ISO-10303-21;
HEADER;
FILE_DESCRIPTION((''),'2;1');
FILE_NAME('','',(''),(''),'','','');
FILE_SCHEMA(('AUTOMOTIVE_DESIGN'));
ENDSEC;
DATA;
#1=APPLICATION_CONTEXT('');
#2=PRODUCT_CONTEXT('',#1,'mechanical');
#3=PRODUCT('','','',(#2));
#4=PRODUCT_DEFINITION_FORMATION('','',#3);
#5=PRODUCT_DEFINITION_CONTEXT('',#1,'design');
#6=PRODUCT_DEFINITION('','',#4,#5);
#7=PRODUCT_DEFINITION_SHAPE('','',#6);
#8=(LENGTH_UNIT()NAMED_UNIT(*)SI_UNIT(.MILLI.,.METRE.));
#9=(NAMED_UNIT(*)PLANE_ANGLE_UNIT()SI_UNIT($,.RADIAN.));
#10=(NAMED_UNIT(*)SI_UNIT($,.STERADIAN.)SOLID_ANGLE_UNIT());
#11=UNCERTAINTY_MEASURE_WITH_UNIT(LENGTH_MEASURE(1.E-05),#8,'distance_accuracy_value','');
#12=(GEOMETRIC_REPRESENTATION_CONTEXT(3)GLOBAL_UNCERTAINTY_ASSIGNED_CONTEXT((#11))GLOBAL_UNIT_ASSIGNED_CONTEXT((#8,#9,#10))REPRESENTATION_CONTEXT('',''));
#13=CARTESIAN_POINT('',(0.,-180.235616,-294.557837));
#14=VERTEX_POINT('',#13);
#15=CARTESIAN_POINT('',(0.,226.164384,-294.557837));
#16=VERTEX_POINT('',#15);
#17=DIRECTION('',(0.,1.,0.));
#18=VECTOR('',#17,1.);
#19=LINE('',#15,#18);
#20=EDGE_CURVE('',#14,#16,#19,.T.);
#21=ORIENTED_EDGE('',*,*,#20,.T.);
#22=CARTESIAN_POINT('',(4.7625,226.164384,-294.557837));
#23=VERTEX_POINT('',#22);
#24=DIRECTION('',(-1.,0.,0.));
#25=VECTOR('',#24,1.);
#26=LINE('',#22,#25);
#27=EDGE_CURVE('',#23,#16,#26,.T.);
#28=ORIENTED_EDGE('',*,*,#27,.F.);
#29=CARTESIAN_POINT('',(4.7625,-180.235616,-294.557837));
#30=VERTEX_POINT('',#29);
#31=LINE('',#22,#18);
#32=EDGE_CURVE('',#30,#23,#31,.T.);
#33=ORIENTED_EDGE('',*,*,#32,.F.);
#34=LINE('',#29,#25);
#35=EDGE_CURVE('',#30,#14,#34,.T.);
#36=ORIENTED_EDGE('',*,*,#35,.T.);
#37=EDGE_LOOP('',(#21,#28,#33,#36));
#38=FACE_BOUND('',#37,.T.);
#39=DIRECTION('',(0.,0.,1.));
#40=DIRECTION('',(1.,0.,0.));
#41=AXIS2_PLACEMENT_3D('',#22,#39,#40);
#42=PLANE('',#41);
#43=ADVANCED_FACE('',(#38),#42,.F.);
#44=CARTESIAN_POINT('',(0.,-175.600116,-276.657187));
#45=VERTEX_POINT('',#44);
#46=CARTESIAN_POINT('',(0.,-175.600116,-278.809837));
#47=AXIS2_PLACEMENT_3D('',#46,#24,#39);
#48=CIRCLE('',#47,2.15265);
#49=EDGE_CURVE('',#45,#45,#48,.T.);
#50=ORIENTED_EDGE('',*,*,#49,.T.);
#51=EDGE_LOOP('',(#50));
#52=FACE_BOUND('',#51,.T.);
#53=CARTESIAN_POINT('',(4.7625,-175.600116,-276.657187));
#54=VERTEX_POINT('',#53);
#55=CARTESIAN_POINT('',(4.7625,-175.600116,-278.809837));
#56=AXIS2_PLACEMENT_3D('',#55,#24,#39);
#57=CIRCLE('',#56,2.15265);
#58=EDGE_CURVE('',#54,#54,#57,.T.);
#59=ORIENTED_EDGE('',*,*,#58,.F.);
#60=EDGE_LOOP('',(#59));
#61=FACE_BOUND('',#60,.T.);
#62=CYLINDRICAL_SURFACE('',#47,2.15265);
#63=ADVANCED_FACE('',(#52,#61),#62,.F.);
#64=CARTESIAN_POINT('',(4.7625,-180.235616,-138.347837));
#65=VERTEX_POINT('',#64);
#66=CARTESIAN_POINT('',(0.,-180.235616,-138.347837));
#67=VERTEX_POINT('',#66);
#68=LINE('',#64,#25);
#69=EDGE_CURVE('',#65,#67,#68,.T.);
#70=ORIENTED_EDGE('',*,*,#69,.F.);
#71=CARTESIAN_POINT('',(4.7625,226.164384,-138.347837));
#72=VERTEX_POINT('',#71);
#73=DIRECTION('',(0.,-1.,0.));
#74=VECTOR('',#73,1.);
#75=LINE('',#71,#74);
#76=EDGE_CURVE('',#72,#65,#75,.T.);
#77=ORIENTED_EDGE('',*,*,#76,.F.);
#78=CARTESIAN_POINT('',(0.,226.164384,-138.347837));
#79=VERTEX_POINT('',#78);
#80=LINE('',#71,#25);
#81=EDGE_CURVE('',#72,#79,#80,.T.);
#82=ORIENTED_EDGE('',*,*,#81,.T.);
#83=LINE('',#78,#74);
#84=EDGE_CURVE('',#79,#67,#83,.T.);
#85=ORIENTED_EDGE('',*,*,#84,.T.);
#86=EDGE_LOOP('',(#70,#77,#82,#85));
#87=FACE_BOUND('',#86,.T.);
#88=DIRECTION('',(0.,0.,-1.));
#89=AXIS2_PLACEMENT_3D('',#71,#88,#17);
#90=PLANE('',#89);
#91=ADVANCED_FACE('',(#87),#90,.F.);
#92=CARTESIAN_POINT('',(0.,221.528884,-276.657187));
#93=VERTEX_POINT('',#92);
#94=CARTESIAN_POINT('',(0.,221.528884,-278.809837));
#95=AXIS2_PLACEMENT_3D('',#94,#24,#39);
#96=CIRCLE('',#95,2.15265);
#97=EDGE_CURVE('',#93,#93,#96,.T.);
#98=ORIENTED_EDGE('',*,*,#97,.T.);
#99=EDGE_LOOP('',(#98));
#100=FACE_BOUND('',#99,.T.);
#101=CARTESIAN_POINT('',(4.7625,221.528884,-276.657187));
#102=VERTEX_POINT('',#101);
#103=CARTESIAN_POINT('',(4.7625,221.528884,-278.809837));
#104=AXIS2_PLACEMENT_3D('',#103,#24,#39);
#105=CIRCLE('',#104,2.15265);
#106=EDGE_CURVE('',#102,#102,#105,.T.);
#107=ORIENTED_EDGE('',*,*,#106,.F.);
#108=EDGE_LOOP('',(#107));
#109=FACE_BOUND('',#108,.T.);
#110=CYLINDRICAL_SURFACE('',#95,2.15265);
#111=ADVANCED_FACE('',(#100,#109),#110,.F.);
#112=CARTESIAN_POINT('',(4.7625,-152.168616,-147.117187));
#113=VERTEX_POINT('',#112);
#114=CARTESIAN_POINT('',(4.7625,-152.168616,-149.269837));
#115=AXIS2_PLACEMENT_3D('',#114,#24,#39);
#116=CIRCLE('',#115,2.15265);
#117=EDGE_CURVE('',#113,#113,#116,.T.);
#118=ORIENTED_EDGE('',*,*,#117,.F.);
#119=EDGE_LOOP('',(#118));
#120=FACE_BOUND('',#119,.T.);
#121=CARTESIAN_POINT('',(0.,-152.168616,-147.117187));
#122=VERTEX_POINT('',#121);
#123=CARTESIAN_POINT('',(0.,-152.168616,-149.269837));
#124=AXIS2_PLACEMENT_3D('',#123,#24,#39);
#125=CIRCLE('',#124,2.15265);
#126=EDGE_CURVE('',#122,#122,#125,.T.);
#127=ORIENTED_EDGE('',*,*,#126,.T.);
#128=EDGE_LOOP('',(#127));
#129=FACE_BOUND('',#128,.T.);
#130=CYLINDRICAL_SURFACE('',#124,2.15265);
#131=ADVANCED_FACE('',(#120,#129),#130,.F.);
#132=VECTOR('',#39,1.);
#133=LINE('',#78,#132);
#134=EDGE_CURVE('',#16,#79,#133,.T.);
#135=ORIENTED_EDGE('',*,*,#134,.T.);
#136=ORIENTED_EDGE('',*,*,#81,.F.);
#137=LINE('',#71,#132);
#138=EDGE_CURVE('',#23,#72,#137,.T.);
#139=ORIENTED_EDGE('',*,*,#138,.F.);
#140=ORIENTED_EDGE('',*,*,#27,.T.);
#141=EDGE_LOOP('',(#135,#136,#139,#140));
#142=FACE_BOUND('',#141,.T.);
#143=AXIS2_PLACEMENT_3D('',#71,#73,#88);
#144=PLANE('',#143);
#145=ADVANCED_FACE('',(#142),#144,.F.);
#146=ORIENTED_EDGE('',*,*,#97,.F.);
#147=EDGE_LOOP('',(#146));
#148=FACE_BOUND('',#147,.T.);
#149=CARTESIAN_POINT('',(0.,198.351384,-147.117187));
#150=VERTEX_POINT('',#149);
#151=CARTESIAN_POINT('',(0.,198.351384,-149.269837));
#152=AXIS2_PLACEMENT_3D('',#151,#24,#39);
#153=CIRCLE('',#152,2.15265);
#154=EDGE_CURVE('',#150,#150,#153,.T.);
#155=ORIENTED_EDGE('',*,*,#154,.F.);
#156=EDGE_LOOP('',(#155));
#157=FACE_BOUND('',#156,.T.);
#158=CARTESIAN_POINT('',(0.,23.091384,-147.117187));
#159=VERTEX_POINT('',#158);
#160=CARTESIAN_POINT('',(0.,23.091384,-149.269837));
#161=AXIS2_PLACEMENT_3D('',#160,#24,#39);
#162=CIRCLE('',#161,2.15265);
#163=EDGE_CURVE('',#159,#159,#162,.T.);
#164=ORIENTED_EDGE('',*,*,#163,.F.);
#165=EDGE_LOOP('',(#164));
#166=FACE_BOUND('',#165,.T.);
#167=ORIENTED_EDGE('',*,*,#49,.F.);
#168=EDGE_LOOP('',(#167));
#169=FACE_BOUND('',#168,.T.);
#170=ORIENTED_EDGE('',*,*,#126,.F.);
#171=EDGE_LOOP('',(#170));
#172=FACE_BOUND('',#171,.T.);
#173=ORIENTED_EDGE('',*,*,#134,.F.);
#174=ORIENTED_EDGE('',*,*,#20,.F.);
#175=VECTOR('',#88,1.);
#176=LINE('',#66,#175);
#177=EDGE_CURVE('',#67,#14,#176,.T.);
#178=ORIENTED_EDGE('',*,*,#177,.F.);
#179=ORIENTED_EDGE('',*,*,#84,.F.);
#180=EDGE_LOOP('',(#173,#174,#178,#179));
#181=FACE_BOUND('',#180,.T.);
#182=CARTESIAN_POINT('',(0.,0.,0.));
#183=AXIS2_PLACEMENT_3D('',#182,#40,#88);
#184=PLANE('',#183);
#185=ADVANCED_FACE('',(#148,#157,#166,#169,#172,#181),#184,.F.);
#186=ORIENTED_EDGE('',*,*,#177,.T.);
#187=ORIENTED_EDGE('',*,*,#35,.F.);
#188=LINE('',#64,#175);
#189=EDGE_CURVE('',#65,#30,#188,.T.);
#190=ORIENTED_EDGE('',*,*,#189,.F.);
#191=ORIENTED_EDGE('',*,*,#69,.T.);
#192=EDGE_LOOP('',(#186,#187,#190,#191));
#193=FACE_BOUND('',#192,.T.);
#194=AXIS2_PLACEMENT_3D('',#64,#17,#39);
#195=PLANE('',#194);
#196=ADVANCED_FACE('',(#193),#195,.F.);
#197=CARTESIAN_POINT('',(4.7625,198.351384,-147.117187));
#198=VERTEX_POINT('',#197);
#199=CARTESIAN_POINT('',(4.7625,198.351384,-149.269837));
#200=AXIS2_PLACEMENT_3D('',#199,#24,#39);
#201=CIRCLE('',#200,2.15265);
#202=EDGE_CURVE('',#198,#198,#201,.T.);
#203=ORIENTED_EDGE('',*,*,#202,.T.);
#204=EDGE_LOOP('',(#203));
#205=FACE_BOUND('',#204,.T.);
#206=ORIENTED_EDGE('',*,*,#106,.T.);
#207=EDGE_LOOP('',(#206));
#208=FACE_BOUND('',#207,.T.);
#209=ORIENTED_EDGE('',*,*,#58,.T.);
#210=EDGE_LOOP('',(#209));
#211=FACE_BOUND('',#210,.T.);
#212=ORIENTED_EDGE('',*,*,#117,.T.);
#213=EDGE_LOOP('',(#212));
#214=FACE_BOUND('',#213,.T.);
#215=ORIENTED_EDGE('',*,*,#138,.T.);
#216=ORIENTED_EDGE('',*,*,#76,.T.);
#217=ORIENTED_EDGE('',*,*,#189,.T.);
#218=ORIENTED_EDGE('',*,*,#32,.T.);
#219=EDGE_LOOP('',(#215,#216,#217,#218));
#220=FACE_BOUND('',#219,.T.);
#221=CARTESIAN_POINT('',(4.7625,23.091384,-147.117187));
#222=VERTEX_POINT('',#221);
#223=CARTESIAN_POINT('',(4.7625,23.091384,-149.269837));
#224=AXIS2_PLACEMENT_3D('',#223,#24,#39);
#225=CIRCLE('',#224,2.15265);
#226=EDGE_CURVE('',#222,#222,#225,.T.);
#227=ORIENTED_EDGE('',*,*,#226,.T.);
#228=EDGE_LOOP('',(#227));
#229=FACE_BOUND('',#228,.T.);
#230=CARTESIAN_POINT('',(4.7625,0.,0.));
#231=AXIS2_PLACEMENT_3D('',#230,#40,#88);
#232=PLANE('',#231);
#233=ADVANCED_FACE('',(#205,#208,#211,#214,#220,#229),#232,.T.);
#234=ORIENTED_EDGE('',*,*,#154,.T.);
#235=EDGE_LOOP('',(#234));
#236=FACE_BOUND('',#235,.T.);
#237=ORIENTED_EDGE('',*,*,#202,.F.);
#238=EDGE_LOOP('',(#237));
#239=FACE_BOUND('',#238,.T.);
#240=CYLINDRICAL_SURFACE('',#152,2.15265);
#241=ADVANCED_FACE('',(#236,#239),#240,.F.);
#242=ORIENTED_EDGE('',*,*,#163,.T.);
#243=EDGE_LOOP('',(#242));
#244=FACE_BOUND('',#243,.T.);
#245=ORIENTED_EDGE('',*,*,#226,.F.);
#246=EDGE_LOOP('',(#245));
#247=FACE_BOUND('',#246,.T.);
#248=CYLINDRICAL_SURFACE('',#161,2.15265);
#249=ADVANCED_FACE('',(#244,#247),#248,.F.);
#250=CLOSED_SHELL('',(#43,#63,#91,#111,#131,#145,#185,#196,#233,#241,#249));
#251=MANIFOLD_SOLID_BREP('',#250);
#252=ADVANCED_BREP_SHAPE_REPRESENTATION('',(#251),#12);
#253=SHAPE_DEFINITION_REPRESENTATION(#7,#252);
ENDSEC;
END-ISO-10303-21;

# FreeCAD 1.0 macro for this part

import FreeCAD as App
import Part
import Sketcher
from FreeCAD import Vector
Q = App.Units.Quantity

doc = App.newDocument("Part")
body = doc.addObject("PartDesign::Body", "Body")

# Sketch on YZ plane
sketch1 = body.newObject("Sketcher::SketchObject", "Sketch")
sketch1.AttachmentSupport = (doc.getObject("YZ_Plane"), [""])
sketch1.MapMode = "FlatFace"
sketch1.addGeometry([
    Part.LineSegment(Vector(226, -138, 0), Vector(-180, -138, 0)),
    Part.LineSegment(Vector(-180, -138, 0), Vector(-180, -295, 0)),
    Part.LineSegment(Vector(-180, -295, 0), Vector(226, -295, 0)),
    Part.LineSegment(Vector(226, -295, 0), Vector(226, -138, 0)),
], False)
sketch1.addConstraint([
    Sketcher.Constraint("Coincident", 0, 2, 1, 1),
    Sketcher.Constraint("Coincident", 1, 2, 2, 1),
    Sketcher.Constraint("Coincident", 2, 2, 3, 1),
    Sketcher.Constraint("Coincident", 3, 2, 0, 1),
    Sketcher.Constraint("Horizontal", 0),
    Sketcher.Constraint("Vertical", 1),
    Sketcher.Constraint("Horizontal", 2),
    Sketcher.Constraint("Vertical", 3),
    Sketcher.Constraint("DistanceX", 0, 2, 0, 1, Q("16 in")),
    Sketcher.Constraint("DistanceY", 1, 2, 1, 1, Q("6.15 in")),
    Sketcher.Constraint("DistanceX", 0, 2, -1, 1, 180.235616),
    Sketcher.Constraint("DistanceY", 0, 2, -1, 1, 138.347837),
])
pad1 = body.newObject("PartDesign::Pad", "Pad")
pad1.Profile = sketch1
pad1.Length = Q("0.1875 in")

# Sketch on YZ plane
sketch2 = body.newObject("Sketcher::SketchObject", "Sketch001")
sketch2.AttachmentSupport = (doc.getObject("YZ_Plane"), [""])
sketch2.MapMode = "FlatFace"
sketch2.addGeometry([
    Part.Circle(Vector(198.4, -149.3, 0), Vector(0, 0, 1), 2.2),  # 0
    Part.Circle(Vector(-152.2, -149.3, 0), Vector(0, 0, 1), 2.2),  # 1
    Part.Circle(Vector(23.1, -149.3, 0), Vector(0, 0, 1), 2.2),  # 2
    Part.Circle(Vector(221.5, -278.8, 0), Vector(0, 0, 1), 2.2),  # 3
    Part.Circle(Vector(-175.6, -278.8, 0), Vector(0, 0, 1), 2.2),  # 4
], False)
sketch2.addConstraint([
    Sketcher.Constraint("Equal", 0, 1),
    Sketcher.Constraint("Equal", 1, 2),
    Sketcher.Constraint("Equal", 2, 3),
    Sketcher.Constraint("Equal", 3, 4),
    Sketcher.Constraint("Horizontal", 0, 3, 1, 3),
    Sketcher.Constraint("Horizontal", 1, 3, 2, 3),
    Sketcher.Constraint("Horizontal", 3, 3, 4, 3),
    Sketcher.Constraint("Diameter", 0, Q("0.1695 in")),
    Sketcher.Constraint("DistanceX", 1, 3, 0, 3, Q("13.8 in")),
    Sketcher.Constraint("DistanceX", 2, 3, 0, 3, Q("6.9 in")),
    Sketcher.Constraint("DistanceY", 3, 3, 0, 3, Q("5.1 in")),
    Sketcher.Constraint("DistanceX", 2, 3, 3, 3, Q("7.8125 in")),
    Sketcher.Constraint("DistanceX", 4, 3, 3, 3, Q("15.635 in")),
    Sketcher.Constraint("DistanceX", -1, 1, 0, 3, 198.351384),
    Sketcher.Constraint("DistanceY", 0, 3, -1, 1, 149.269837),
])
doc.recompute()
hole = body.newObject("PartDesign::Hole", "Hole")
hole.Profile = sketch2
hole.ThreadType = "None"
hole.Diameter = Q("0.1695 in")
hole.DepthType = "ThroughAll"
hole.Reversed = True

doc.recompute()
